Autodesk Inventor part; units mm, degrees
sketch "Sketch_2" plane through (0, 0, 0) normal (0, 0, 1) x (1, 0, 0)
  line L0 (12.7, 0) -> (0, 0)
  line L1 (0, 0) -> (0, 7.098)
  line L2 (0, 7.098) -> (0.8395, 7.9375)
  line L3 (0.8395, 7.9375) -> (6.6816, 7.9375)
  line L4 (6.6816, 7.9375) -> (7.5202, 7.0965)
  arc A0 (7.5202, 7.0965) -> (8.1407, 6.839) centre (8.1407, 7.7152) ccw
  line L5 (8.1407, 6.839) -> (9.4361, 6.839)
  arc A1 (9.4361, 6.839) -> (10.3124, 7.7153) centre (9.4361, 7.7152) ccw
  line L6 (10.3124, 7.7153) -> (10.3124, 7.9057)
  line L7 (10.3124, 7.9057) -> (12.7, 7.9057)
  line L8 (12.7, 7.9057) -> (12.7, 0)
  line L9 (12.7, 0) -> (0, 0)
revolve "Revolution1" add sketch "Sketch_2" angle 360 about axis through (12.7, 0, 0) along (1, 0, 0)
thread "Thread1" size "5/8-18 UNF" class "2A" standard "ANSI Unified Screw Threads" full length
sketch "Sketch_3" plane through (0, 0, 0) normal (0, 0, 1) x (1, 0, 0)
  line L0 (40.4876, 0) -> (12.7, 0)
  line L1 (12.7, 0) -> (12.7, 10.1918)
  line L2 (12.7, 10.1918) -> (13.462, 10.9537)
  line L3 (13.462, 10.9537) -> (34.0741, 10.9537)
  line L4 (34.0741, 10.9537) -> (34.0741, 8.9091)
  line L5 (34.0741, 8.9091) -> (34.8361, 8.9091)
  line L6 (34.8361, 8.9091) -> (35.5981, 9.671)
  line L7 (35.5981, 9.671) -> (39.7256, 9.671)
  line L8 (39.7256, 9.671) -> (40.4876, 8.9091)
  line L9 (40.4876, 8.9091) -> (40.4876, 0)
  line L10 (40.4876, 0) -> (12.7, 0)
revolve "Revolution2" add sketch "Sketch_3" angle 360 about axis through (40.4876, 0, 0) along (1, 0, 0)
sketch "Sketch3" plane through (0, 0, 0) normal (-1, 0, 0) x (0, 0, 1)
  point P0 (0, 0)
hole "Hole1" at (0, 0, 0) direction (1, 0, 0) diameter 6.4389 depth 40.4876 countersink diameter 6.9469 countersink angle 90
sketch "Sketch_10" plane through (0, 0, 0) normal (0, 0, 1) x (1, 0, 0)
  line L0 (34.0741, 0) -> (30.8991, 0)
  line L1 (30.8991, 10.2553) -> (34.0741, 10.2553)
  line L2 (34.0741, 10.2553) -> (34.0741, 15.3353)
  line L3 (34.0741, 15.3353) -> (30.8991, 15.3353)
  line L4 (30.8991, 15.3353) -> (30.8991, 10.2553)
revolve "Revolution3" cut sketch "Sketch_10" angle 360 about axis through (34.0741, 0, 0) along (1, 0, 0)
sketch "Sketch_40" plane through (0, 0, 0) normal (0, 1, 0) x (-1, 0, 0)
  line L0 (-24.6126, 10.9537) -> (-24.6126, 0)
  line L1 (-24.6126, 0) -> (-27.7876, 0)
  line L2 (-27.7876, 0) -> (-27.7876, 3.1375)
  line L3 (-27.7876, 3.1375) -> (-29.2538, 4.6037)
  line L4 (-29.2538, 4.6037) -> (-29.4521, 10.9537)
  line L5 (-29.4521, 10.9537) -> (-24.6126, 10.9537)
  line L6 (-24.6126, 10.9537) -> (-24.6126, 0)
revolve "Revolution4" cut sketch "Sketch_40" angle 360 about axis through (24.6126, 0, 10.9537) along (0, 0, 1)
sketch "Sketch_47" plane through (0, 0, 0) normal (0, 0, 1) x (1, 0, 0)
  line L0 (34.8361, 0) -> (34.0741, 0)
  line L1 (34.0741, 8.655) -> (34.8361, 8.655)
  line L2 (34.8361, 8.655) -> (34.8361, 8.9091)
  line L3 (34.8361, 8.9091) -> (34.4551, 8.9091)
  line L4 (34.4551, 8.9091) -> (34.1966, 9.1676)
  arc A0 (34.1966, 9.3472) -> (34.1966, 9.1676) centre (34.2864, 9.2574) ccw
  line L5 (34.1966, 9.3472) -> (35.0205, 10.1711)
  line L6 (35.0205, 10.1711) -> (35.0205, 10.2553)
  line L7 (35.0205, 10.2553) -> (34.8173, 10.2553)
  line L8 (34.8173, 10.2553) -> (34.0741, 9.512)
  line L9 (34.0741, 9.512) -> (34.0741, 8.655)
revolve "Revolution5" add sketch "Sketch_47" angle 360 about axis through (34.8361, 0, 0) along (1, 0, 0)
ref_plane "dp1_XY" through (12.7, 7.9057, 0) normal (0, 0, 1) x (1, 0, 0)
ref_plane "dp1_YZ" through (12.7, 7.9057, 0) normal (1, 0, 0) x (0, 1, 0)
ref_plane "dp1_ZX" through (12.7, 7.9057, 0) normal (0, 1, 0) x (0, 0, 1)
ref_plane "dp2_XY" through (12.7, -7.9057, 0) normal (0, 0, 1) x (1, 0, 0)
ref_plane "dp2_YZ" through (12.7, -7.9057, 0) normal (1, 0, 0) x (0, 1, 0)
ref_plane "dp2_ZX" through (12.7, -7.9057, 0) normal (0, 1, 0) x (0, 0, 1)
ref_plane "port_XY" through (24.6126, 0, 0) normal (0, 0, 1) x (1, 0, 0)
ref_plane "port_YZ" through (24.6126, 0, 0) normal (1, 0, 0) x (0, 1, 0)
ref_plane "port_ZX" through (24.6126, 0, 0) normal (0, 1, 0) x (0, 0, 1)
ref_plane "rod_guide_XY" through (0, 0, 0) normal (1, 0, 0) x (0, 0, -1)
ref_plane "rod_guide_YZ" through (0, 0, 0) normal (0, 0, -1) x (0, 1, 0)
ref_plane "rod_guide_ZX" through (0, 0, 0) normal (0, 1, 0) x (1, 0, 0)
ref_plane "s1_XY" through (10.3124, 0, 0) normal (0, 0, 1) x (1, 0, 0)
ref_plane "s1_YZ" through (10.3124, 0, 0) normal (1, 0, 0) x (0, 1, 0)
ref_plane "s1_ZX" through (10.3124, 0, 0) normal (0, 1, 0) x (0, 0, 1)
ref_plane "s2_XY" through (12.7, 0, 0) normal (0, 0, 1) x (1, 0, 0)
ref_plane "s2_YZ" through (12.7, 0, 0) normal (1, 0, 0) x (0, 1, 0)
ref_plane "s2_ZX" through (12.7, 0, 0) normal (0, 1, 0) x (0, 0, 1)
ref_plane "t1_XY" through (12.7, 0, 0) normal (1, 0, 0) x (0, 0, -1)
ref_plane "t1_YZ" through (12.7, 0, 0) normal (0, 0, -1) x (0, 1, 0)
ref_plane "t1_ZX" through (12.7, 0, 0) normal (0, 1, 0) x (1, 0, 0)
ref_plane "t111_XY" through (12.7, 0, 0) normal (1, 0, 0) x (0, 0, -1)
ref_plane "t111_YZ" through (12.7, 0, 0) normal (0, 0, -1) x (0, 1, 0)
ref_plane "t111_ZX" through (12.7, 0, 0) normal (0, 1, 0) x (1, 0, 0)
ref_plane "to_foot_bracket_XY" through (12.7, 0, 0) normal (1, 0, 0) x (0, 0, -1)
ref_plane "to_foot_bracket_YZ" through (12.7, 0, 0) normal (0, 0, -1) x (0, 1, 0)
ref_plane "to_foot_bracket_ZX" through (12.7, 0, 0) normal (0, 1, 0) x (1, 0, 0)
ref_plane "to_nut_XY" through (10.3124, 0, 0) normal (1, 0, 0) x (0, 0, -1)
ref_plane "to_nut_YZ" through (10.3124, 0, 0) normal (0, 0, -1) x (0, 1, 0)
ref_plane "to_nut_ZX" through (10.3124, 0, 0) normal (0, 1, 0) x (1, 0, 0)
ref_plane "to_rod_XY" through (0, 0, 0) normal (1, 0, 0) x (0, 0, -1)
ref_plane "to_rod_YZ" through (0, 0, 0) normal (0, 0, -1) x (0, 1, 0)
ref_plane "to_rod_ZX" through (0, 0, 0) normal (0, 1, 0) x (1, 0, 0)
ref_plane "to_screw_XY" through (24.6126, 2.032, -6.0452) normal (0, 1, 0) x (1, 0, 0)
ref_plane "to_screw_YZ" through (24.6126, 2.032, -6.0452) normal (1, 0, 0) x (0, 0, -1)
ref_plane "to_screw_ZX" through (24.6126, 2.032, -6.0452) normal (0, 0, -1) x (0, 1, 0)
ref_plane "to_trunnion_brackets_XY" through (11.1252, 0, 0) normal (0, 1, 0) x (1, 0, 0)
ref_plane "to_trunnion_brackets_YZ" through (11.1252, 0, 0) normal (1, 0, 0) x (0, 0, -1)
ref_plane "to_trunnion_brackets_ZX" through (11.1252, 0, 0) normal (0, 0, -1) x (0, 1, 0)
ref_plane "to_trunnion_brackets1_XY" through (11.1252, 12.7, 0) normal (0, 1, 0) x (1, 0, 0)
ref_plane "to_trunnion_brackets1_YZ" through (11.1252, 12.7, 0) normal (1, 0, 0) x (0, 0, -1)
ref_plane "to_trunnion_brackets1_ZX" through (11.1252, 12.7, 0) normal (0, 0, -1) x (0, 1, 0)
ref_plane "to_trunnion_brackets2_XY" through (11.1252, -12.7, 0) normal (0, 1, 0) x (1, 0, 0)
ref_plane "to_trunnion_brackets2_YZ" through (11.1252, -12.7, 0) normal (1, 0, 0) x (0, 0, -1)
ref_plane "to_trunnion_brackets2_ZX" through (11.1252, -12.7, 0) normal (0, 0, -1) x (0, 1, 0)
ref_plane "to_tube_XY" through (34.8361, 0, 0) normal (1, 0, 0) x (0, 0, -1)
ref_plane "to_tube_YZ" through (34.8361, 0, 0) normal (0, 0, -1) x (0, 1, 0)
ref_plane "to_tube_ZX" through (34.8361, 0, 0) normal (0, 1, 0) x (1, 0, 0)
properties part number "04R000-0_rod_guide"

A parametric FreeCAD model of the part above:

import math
import FreeCAD as App
import Part
import Sketcher
Q = App.Units.Quantity

doc = App.newDocument("Part")
body = doc.addObject("PartDesign::Body", "Body")

# Sketch on XY plane
sketch1 = body.newObject("Sketcher::SketchObject", "Sketch")
sketch1.AttachmentSupport = (doc.getObject("XY_Plane"), [""])
sketch1.MapMode = "FlatFace"
sketch1.addGeometry(Part.LineSegment(App.Vector(0, 0, 0), App.Vector(12.7, 0, 0)), False)
sketch1.addGeometry(Part.LineSegment(App.Vector(12.7, 0, 0), App.Vector(12.7, 7.91, 0)), False)
sketch1.addGeometry(Part.LineSegment(App.Vector(12.7, 7.91, 0), App.Vector(10.31, 7.91, 0)), False)
sketch1.addGeometry(Part.LineSegment(App.Vector(10.31, 7.91, 0), App.Vector(10.31, 7.72, 0)), False)
sketch1.addGeometry(Part.ArcOfCircle(Part.Circle(App.Vector(9.44, 7.72, 0), App.Vector(0, 0, 1), 0.88), math.radians(-90), math.radians(0)), False)
sketch1.addGeometry(Part.LineSegment(App.Vector(9.44, 6.84, 0), App.Vector(8.14, 6.84, 0)), False)
sketch1.addGeometry(Part.ArcOfCircle(Part.Circle(App.Vector(8.14, 7.72, 0), App.Vector(0, 0, 1), 0.88), math.radians(-135), math.radians(-90)), False)
sketch1.addGeometry(Part.LineSegment(App.Vector(7.52, 7.1, 0), App.Vector(6.68, 7.94, 0)), False)
sketch1.addGeometry(Part.LineSegment(App.Vector(6.68, 7.94, 0), App.Vector(0.84, 7.94, 0)), False)
sketch1.addGeometry(Part.LineSegment(App.Vector(0.84, 7.94, 0), App.Vector(0, 7.1, 0)), False)
sketch1.addGeometry(Part.LineSegment(App.Vector(0, 7.1, 0), App.Vector(0, 0, 0)), False)
sketch1.addConstraint(Sketcher.Constraint("Coincident", 0, 2, 1, 1))
sketch1.addConstraint(Sketcher.Constraint("Coincident", 1, 2, 2, 1))
sketch1.addConstraint(Sketcher.Constraint("Coincident", 2, 2, 3, 1))
sketch1.addConstraint(Sketcher.Constraint("Tangent", 3, 2, 4, 2))
sketch1.addConstraint(Sketcher.Constraint("Tangent", 4, 1, 5, 1))
sketch1.addConstraint(Sketcher.Constraint("Tangent", 5, 2, 6, 2))
sketch1.addConstraint(Sketcher.Constraint("Tangent", 6, 1, 7, 1))
sketch1.addConstraint(Sketcher.Constraint("Coincident", 7, 2, 8, 1))
sketch1.addConstraint(Sketcher.Constraint("Coincident", 8, 2, 9, 1))
sketch1.addConstraint(Sketcher.Constraint("Coincident", 9, 2, 10, 1))
sketch1.addConstraint(Sketcher.Constraint("Coincident", 10, 2, 0, 1))
sketch1.addConstraint(Sketcher.Constraint("Horizontal", 0))
sketch1.addConstraint(Sketcher.Constraint("Vertical", 1))
sketch1.addConstraint(Sketcher.Constraint("Horizontal", 2))
sketch1.addConstraint(Sketcher.Constraint("Vertical", 3))
sketch1.addConstraint(Sketcher.Constraint("Horizontal", 5))
sketch1.addConstraint(Sketcher.Constraint("Horizontal", 8))
sketch1.addConstraint(Sketcher.Constraint("Vertical", 10))
sketch1.addConstraint(Sketcher.Constraint("Coincident", 10, 2, -1, 1))
sketch1.addConstraint(Sketcher.Constraint("Equal", 4, 6))
sketch1.addConstraint(Sketcher.Constraint("DistanceX", 0, 1, 0, 2, Q("0.5 in")))
sketch1.addConstraint(Sketcher.Constraint("Angle", 9, Q("-135 deg")))
sketch1.addConstraint(Sketcher.Constraint("DistanceX", 8, 2, 8, 1, Q("0.23 in")))
sketch1.addConstraint(Sketcher.Constraint("Radius", 4, Q("0.0345 in")))
sketch1.addConstraint(Sketcher.Constraint("DistanceX", 2, 2, 2, 1, Q("0.094 in")))
sketch1.addConstraint(Sketcher.Constraint("DistanceX", 5, 2, 5, 1, Q("0.051 in")))
sketch1.addConstraint(Sketcher.Constraint("DistanceY", 3, 2, 3, 1, Q("0.0075 in")))
sketch1.addConstraint(Sketcher.Constraint("DistanceY", -1, 1, 7, 2, Q("0.3125 in")))
sketch1.addConstraint(Sketcher.Constraint("DistanceY", 1, 1, 1, 2, Q("7.9057 mm")))
sketch1.addConstraint(Sketcher.Constraint("DistanceY", 10, 2, 10, 1, Q("7.098 mm")))
revolution = body.newObject("PartDesign::Revolution", "Revolution")
revolution.Profile = sketch1
revolution.ReferenceAxis = (sketch1, ["H_Axis"])
revolution.Angle = 360

# Sketch on XY plane
sketch2 = body.newObject("Sketcher::SketchObject", "Sketch001")
sketch2.AttachmentSupport = (doc.getObject("XY_Plane"), [""])
sketch2.MapMode = "FlatFace"
sketch2.addGeometry(Part.LineSegment(App.Vector(12.7, 0, 0), App.Vector(40.5, 0, 0)), False)
sketch2.addGeometry(Part.LineSegment(App.Vector(40.5, 0, 0), App.Vector(40.5, 8.9, 0)), False)
sketch2.addGeometry(Part.LineSegment(App.Vector(40.5, 8.9, 0), App.Vector(39.7, 9.7, 0)), False)
sketch2.addGeometry(Part.LineSegment(App.Vector(39.7, 9.7, 0), App.Vector(35.6, 9.7, 0)), False)
sketch2.addGeometry(Part.LineSegment(App.Vector(35.6, 9.7, 0), App.Vector(34.8, 8.9, 0)), False)
sketch2.addGeometry(Part.LineSegment(App.Vector(34.8, 8.9, 0), App.Vector(34.1, 8.9, 0)), False)
sketch2.addGeometry(Part.LineSegment(App.Vector(34.1, 8.9, 0), App.Vector(34.1, 11, 0)), False)
sketch2.addGeometry(Part.LineSegment(App.Vector(34.1, 11, 0), App.Vector(13.5, 11, 0)), False)
sketch2.addGeometry(Part.LineSegment(App.Vector(13.5, 11, 0), App.Vector(12.7, 10.2, 0)), False)
sketch2.addGeometry(Part.LineSegment(App.Vector(12.7, 10.2, 0), App.Vector(12.7, 0, 0)), False)
sketch2.addConstraint(Sketcher.Constraint("Coincident", 0, 2, 1, 1))
sketch2.addConstraint(Sketcher.Constraint("Coincident", 1, 2, 2, 1))
sketch2.addConstraint(Sketcher.Constraint("Coincident", 2, 2, 3, 1))
sketch2.addConstraint(Sketcher.Constraint("Coincident", 3, 2, 4, 1))
sketch2.addConstraint(Sketcher.Constraint("Coincident", 4, 2, 5, 1))
sketch2.addConstraint(Sketcher.Constraint("Coincident", 5, 2, 6, 1))
sketch2.addConstraint(Sketcher.Constraint("Coincident", 6, 2, 7, 1))
sketch2.addConstraint(Sketcher.Constraint("Coincident", 7, 2, 8, 1))
sketch2.addConstraint(Sketcher.Constraint("Coincident", 8, 2, 9, 1))
sketch2.addConstraint(Sketcher.Constraint("Coincident", 9, 2, 0, 1))
sketch2.addConstraint(Sketcher.Constraint("Horizontal", 0))
sketch2.addConstraint(Sketcher.Constraint("Vertical", 1))
sketch2.addConstraint(Sketcher.Constraint("Horizontal", 3))
sketch2.addConstraint(Sketcher.Constraint("Horizontal", 5))
sketch2.addConstraint(Sketcher.Constraint("Vertical", 6))
sketch2.addConstraint(Sketcher.Constraint("Horizontal", 7))
sketch2.addConstraint(Sketcher.Constraint("Vertical", 9))
sketch2.addConstraint(Sketcher.Constraint("PointOnObject", 0, 2, -1))
sketch2.addConstraint(Sketcher.Constraint("Perpendicular", 2, 4))
sketch2.addConstraint(Sketcher.Constraint("Parallel", 4, 8))
sketch2.addConstraint(Sketcher.Constraint("Horizontal", 1, 2, 4, 2))
sketch2.addConstraint(Sketcher.Constraint("Equal", 2, 4))
sketch2.addConstraint(Sketcher.Constraint("Equal", 4, 8))
sketch2.addConstraint(Sketcher.Constraint("DistanceX", 5, 2, 5, 1, Q("0.03 in")))
sketch2.addConstraint(Sketcher.Constraint("DistanceX", -1, 1, 8, 2, Q("0.5 in")))
sketch2.addConstraint(Sketcher.Constraint("DistanceX", 0, 1, 0, 2, Q("1.094 in")))
sketch2.addConstraint(Sketcher.Constraint("DistanceX", -1, 1, 7, 2, Q("0.53 in")))
sketch2.addConstraint(Sketcher.Constraint("DistanceX", 3, 2, 3, 1, Q("0.1625 in")))
sketch2.addConstraint(Sketcher.Constraint("DistanceY", 6, 1, 6, 2, Q("0.0805 in")))
sketch2.addConstraint(Sketcher.Constraint("DistanceY", 1, 1, 1, 2, Q("8.909 mm")))
revolution2 = body.newObject("PartDesign::Revolution", "Revolution001")
revolution2.Profile = sketch2
revolution2.ReferenceAxis = (sketch2, ["H_Axis"])
revolution2.Angle = 360

# Sketch on YZ plane
sketch3 = body.newObject("Sketcher::SketchObject", "Sketch002")
sketch3.AttachmentSupport = (doc.getObject("YZ_Plane"), [""])
sketch3.MapMode = "FlatFace"
sketch3.addGeometry(Part.Circle(App.Vector(0, 0, 0), App.Vector(0, 0, 1), 3.2), False)
sketch3.addConstraint(Sketcher.Constraint("Coincident", 0, 3, -1, 1))
sketch3.addConstraint(Sketcher.Constraint("Diameter", 0, Q("0.2535 in")))
doc.recompute()
hole = body.newObject("PartDesign::Hole", "Hole")
hole.Profile = sketch3
hole.ThreadType = "None"
hole.Diameter = Q("0.2535 in")
hole.DepthType = "Dimension"
hole.Depth = Q("1.594 in")
hole.DrillPoint = "Flat"
hole.HoleCutType = "Countersink"
hole.HoleCutDiameter = Q("0.2735 in")
hole.HoleCutCountersinkAngle = 90
hole.Reversed = True

# Sketch on XY plane
sketch4 = body.newObject("Sketcher::SketchObject", "Sketch003")
sketch4.AttachmentSupport = (doc.getObject("XY_Plane"), [""])
sketch4.MapMode = "FlatFace"
sketch4.addGeometry(Part.LineSegment(App.Vector(30.9, 15.3, 0), App.Vector(30.9, 10.3, 0)), False)
sketch4.addGeometry(Part.LineSegment(App.Vector(30.9, 10.3, 0), App.Vector(34.1, 10.3, 0)), False)
sketch4.addGeometry(Part.LineSegment(App.Vector(34.1, 10.3, 0), App.Vector(34.1, 15.3, 0)), False)
sketch4.addGeometry(Part.LineSegment(App.Vector(34.1, 15.3, 0), App.Vector(30.9, 15.3, 0)), False)
sketch4.addConstraint(Sketcher.Constraint("Coincident", 0, 2, 1, 1))
sketch4.addConstraint(Sketcher.Constraint("Coincident", 1, 2, 2, 1))
sketch4.addConstraint(Sketcher.Constraint("Coincident", 2, 2, 3, 1))
sketch4.addConstraint(Sketcher.Constraint("Coincident", 3, 2, 0, 1))
sketch4.addConstraint(Sketcher.Constraint("Vertical", 0))
sketch4.addConstraint(Sketcher.Constraint("Horizontal", 1))
sketch4.addConstraint(Sketcher.Constraint("Vertical", 2))
sketch4.addConstraint(Sketcher.Constraint("Horizontal", 3))
sketch4.addConstraint(Sketcher.Constraint("DistanceY", 0, 2, 0, 1, Q("0.2 in")))
sketch4.addConstraint(Sketcher.Constraint("DistanceX", 1, 1, 1, 2, Q("0.125 in")))
sketch4.addConstraint(Sketcher.Constraint("DistanceX", -1, 1, 0, 2, Q("1.2165 in")))
sketch4.addConstraint(Sketcher.Constraint("DistanceY", -1, 1, 0, 2, Q("10.2553 mm")))
groove = body.newObject("PartDesign::Groove", "Groove")
groove.Profile = sketch4
groove.ReferenceAxis = (sketch4, ["H_Axis"])
groove.Angle = 360

# Sketch on XZ plane
sketch5 = body.newObject("Sketcher::SketchObject", "Sketch004")
sketch5.AttachmentSupport = (doc.getObject("XZ_Plane"), [""])
sketch5.MapMode = "FlatFace"
sketch5.addGeometry(Part.LineSegment(App.Vector(24.6, 0, 0), App.Vector(24.6, 11, 0)), False)
sketch5.addGeometry(Part.LineSegment(App.Vector(24.6, 11, 0), App.Vector(29.5, 11, 0)), False)
sketch5.addGeometry(Part.LineSegment(App.Vector(29.5, 11, 0), App.Vector(29.3, 4.6, 0)), False)
sketch5.addGeometry(Part.LineSegment(App.Vector(29.3, 4.6, 0), App.Vector(27.8, 3.1, 0)), False)
sketch5.addGeometry(Part.LineSegment(App.Vector(27.8, 3.1, 0), App.Vector(27.8, 0, 0)), False)
sketch5.addGeometry(Part.LineSegment(App.Vector(27.8, 0, 0), App.Vector(24.6, 0, 0)), False)
sketch5.addGeometry(Part.LineSegment(App.Vector(24.6, 0, 0), App.Vector(24.6, 11, 0)), True)  # axis
sketch5.addConstraint(Sketcher.Constraint("Coincident", 0, 2, 1, 1))
sketch5.addConstraint(Sketcher.Constraint("Coincident", 1, 2, 2, 1))
sketch5.addConstraint(Sketcher.Constraint("Coincident", 2, 2, 3, 1))
sketch5.addConstraint(Sketcher.Constraint("Coincident", 3, 2, 4, 1))
sketch5.addConstraint(Sketcher.Constraint("Coincident", 4, 2, 5, 1))
sketch5.addConstraint(Sketcher.Constraint("Coincident", 5, 2, 0, 1))
sketch5.addConstraint(Sketcher.Constraint("Vertical", 0))
sketch5.addConstraint(Sketcher.Constraint("Horizontal", 1))
sketch5.addConstraint(Sketcher.Constraint("Vertical", 4))
sketch5.addConstraint(Sketcher.Constraint("Horizontal", 5))
sketch5.addConstraint(Sketcher.Constraint("Vertical", 6))
sketch5.addConstraint(Sketcher.Constraint("Coincident", 6, 1, 5, 2))
sketch5.addConstraint(Sketcher.Constraint("PointOnObject", 4, 2, -1))
sketch5.addConstraint(Sketcher.Constraint("Horizontal", 1, 2, 6, 2))
sketch5.addConstraint(Sketcher.Constraint("Angle", 3, Q("-135 deg")))
sketch5.addConstraint(Sketcher.Constraint("DistanceX", 5, 2, 5, 1, Q("0.125 in")))
sketch5.addConstraint(Sketcher.Constraint("DistanceY", 2, 2, 1, 2, Q("0.25 in")))
sketch5.addConstraint(Sketcher.Constraint("DistanceX", -1, 1, 0, 2, Q("0.969 in")))
sketch5.addConstraint(Sketcher.Constraint("DistanceX", 1, 1, 1, 2, Q("4.8395 mm")))
sketch5.addConstraint(Sketcher.Constraint("DistanceY", 0, 1, 0, 2, Q("10.9537 mm")))
sketch5.addConstraint(Sketcher.Constraint("DistanceY", 4, 2, 4, 1, Q("3.1375 mm")))
groove2 = body.newObject("PartDesign::Groove", "Groove001")
groove2.Profile = sketch5
groove2.ReferenceAxis = (sketch5, ["Axis0"])
groove2.Angle = 360

# Sketch on XY plane
sketch6 = body.newObject("Sketcher::SketchObject", "Sketch005")
sketch6.AttachmentSupport = (doc.getObject("XY_Plane"), [""])
sketch6.MapMode = "FlatFace"
sketch6.addGeometry(Part.LineSegment(App.Vector(34.07, 9.51, 0), App.Vector(34.07, 8.65, 0)), False)
sketch6.addGeometry(Part.LineSegment(App.Vector(34.07, 8.65, 0), App.Vector(34.84, 8.65, 0)), False)
sketch6.addGeometry(Part.LineSegment(App.Vector(34.84, 8.65, 0), App.Vector(34.84, 8.91, 0)), False)
sketch6.addGeometry(Part.LineSegment(App.Vector(34.84, 8.91, 0), App.Vector(34.46, 8.91, 0)), False)
sketch6.addGeometry(Part.LineSegment(App.Vector(34.46, 8.91, 0), App.Vector(34.2, 9.17, 0)), False)
sketch6.addGeometry(Part.ArcOfCircle(Part.Circle(App.Vector(34.29, 9.26, 0), App.Vector(0, 0, 1), 0.13), math.radians(135), math.radians(225)), False)
sketch6.addGeometry(Part.LineSegment(App.Vector(34.2, 9.35, 0), App.Vector(35.02, 10.17, 0)), False)
sketch6.addGeometry(Part.LineSegment(App.Vector(35.02, 10.17, 0), App.Vector(35.02, 10.26, 0)), False)
sketch6.addGeometry(Part.LineSegment(App.Vector(35.02, 10.26, 0), App.Vector(34.82, 10.26, 0)), False)
sketch6.addGeometry(Part.LineSegment(App.Vector(34.82, 10.26, 0), App.Vector(34.07, 9.51, 0)), False)
sketch6.addConstraint(Sketcher.Constraint("Coincident", 0, 2, 1, 1))
sketch6.addConstraint(Sketcher.Constraint("Coincident", 1, 2, 2, 1))
sketch6.addConstraint(Sketcher.Constraint("Coincident", 2, 2, 3, 1))
sketch6.addConstraint(Sketcher.Constraint("Coincident", 3, 2, 4, 1))
sketch6.addConstraint(Sketcher.Constraint("Tangent", 4, 2, 5, 2))
sketch6.addConstraint(Sketcher.Constraint("Tangent", 5, 1, 6, 1))
sketch6.addConstraint(Sketcher.Constraint("Coincident", 6, 2, 7, 1))
sketch6.addConstraint(Sketcher.Constraint("Coincident", 7, 2, 8, 1))
sketch6.addConstraint(Sketcher.Constraint("Coincident", 8, 2, 9, 1))
sketch6.addConstraint(Sketcher.Constraint("Coincident", 9, 2, 0, 1))
sketch6.addConstraint(Sketcher.Constraint("Vertical", 0))
sketch6.addConstraint(Sketcher.Constraint("Horizontal", 1))
sketch6.addConstraint(Sketcher.Constraint("Vertical", 2))
sketch6.addConstraint(Sketcher.Constraint("Horizontal", 3))
sketch6.addConstraint(Sketcher.Constraint("Vertical", 7))
sketch6.addConstraint(Sketcher.Constraint("Horizontal", 8))
sketch6.addConstraint(Sketcher.Constraint("Perpendicular", 4, 6))
sketch6.addConstraint(Sketcher.Constraint("Parallel", 6, 9))
sketch6.addConstraint(Sketcher.Constraint("Vertical", 4, 2, 5, 1))
sketch6.addConstraint(Sketcher.Constraint("Radius", 5, Q("0.005 in")))
sketch6.addConstraint(Sketcher.Constraint("DistanceX", 1, 1, 1, 2, Q("0.03 in")))
sketch6.addConstraint(Sketcher.Constraint("DistanceY", 2, 1, 2, 2, Q("0.01 in")))
sketch6.addConstraint(Sketcher.Constraint("DistanceX", 3, 2, 3, 1, Q("0.015 in")))
sketch6.addConstraint(Sketcher.Constraint("DistanceX", 8, 2, 8, 1, Q("0.008 in")))
sketch6.addConstraint(Sketcher.Constraint("DistanceY", -1, 1, 5, 1, Q("0.368 in")))
sketch6.addConstraint(Sketcher.Constraint("DistanceY", 2, 2, 7, 2, Q("0.053 in")))
sketch6.addConstraint(Sketcher.Constraint("Distance", 4, Q("0.0144 in")))
sketch6.addConstraint(Sketcher.Constraint("DistanceY", 0, 2, 0, 1, Q("0.857 mm")))
sketch6.addConstraint(Sketcher.Constraint("DistanceX", -1, 1, 0, 2, Q("1.3415 in")))
revolution3 = body.newObject("PartDesign::Revolution", "Revolution002")
revolution3.Profile = sketch6
revolution3.ReferenceAxis = (sketch6, ["H_Axis"])
revolution3.Angle = 360

doc.recompute()
